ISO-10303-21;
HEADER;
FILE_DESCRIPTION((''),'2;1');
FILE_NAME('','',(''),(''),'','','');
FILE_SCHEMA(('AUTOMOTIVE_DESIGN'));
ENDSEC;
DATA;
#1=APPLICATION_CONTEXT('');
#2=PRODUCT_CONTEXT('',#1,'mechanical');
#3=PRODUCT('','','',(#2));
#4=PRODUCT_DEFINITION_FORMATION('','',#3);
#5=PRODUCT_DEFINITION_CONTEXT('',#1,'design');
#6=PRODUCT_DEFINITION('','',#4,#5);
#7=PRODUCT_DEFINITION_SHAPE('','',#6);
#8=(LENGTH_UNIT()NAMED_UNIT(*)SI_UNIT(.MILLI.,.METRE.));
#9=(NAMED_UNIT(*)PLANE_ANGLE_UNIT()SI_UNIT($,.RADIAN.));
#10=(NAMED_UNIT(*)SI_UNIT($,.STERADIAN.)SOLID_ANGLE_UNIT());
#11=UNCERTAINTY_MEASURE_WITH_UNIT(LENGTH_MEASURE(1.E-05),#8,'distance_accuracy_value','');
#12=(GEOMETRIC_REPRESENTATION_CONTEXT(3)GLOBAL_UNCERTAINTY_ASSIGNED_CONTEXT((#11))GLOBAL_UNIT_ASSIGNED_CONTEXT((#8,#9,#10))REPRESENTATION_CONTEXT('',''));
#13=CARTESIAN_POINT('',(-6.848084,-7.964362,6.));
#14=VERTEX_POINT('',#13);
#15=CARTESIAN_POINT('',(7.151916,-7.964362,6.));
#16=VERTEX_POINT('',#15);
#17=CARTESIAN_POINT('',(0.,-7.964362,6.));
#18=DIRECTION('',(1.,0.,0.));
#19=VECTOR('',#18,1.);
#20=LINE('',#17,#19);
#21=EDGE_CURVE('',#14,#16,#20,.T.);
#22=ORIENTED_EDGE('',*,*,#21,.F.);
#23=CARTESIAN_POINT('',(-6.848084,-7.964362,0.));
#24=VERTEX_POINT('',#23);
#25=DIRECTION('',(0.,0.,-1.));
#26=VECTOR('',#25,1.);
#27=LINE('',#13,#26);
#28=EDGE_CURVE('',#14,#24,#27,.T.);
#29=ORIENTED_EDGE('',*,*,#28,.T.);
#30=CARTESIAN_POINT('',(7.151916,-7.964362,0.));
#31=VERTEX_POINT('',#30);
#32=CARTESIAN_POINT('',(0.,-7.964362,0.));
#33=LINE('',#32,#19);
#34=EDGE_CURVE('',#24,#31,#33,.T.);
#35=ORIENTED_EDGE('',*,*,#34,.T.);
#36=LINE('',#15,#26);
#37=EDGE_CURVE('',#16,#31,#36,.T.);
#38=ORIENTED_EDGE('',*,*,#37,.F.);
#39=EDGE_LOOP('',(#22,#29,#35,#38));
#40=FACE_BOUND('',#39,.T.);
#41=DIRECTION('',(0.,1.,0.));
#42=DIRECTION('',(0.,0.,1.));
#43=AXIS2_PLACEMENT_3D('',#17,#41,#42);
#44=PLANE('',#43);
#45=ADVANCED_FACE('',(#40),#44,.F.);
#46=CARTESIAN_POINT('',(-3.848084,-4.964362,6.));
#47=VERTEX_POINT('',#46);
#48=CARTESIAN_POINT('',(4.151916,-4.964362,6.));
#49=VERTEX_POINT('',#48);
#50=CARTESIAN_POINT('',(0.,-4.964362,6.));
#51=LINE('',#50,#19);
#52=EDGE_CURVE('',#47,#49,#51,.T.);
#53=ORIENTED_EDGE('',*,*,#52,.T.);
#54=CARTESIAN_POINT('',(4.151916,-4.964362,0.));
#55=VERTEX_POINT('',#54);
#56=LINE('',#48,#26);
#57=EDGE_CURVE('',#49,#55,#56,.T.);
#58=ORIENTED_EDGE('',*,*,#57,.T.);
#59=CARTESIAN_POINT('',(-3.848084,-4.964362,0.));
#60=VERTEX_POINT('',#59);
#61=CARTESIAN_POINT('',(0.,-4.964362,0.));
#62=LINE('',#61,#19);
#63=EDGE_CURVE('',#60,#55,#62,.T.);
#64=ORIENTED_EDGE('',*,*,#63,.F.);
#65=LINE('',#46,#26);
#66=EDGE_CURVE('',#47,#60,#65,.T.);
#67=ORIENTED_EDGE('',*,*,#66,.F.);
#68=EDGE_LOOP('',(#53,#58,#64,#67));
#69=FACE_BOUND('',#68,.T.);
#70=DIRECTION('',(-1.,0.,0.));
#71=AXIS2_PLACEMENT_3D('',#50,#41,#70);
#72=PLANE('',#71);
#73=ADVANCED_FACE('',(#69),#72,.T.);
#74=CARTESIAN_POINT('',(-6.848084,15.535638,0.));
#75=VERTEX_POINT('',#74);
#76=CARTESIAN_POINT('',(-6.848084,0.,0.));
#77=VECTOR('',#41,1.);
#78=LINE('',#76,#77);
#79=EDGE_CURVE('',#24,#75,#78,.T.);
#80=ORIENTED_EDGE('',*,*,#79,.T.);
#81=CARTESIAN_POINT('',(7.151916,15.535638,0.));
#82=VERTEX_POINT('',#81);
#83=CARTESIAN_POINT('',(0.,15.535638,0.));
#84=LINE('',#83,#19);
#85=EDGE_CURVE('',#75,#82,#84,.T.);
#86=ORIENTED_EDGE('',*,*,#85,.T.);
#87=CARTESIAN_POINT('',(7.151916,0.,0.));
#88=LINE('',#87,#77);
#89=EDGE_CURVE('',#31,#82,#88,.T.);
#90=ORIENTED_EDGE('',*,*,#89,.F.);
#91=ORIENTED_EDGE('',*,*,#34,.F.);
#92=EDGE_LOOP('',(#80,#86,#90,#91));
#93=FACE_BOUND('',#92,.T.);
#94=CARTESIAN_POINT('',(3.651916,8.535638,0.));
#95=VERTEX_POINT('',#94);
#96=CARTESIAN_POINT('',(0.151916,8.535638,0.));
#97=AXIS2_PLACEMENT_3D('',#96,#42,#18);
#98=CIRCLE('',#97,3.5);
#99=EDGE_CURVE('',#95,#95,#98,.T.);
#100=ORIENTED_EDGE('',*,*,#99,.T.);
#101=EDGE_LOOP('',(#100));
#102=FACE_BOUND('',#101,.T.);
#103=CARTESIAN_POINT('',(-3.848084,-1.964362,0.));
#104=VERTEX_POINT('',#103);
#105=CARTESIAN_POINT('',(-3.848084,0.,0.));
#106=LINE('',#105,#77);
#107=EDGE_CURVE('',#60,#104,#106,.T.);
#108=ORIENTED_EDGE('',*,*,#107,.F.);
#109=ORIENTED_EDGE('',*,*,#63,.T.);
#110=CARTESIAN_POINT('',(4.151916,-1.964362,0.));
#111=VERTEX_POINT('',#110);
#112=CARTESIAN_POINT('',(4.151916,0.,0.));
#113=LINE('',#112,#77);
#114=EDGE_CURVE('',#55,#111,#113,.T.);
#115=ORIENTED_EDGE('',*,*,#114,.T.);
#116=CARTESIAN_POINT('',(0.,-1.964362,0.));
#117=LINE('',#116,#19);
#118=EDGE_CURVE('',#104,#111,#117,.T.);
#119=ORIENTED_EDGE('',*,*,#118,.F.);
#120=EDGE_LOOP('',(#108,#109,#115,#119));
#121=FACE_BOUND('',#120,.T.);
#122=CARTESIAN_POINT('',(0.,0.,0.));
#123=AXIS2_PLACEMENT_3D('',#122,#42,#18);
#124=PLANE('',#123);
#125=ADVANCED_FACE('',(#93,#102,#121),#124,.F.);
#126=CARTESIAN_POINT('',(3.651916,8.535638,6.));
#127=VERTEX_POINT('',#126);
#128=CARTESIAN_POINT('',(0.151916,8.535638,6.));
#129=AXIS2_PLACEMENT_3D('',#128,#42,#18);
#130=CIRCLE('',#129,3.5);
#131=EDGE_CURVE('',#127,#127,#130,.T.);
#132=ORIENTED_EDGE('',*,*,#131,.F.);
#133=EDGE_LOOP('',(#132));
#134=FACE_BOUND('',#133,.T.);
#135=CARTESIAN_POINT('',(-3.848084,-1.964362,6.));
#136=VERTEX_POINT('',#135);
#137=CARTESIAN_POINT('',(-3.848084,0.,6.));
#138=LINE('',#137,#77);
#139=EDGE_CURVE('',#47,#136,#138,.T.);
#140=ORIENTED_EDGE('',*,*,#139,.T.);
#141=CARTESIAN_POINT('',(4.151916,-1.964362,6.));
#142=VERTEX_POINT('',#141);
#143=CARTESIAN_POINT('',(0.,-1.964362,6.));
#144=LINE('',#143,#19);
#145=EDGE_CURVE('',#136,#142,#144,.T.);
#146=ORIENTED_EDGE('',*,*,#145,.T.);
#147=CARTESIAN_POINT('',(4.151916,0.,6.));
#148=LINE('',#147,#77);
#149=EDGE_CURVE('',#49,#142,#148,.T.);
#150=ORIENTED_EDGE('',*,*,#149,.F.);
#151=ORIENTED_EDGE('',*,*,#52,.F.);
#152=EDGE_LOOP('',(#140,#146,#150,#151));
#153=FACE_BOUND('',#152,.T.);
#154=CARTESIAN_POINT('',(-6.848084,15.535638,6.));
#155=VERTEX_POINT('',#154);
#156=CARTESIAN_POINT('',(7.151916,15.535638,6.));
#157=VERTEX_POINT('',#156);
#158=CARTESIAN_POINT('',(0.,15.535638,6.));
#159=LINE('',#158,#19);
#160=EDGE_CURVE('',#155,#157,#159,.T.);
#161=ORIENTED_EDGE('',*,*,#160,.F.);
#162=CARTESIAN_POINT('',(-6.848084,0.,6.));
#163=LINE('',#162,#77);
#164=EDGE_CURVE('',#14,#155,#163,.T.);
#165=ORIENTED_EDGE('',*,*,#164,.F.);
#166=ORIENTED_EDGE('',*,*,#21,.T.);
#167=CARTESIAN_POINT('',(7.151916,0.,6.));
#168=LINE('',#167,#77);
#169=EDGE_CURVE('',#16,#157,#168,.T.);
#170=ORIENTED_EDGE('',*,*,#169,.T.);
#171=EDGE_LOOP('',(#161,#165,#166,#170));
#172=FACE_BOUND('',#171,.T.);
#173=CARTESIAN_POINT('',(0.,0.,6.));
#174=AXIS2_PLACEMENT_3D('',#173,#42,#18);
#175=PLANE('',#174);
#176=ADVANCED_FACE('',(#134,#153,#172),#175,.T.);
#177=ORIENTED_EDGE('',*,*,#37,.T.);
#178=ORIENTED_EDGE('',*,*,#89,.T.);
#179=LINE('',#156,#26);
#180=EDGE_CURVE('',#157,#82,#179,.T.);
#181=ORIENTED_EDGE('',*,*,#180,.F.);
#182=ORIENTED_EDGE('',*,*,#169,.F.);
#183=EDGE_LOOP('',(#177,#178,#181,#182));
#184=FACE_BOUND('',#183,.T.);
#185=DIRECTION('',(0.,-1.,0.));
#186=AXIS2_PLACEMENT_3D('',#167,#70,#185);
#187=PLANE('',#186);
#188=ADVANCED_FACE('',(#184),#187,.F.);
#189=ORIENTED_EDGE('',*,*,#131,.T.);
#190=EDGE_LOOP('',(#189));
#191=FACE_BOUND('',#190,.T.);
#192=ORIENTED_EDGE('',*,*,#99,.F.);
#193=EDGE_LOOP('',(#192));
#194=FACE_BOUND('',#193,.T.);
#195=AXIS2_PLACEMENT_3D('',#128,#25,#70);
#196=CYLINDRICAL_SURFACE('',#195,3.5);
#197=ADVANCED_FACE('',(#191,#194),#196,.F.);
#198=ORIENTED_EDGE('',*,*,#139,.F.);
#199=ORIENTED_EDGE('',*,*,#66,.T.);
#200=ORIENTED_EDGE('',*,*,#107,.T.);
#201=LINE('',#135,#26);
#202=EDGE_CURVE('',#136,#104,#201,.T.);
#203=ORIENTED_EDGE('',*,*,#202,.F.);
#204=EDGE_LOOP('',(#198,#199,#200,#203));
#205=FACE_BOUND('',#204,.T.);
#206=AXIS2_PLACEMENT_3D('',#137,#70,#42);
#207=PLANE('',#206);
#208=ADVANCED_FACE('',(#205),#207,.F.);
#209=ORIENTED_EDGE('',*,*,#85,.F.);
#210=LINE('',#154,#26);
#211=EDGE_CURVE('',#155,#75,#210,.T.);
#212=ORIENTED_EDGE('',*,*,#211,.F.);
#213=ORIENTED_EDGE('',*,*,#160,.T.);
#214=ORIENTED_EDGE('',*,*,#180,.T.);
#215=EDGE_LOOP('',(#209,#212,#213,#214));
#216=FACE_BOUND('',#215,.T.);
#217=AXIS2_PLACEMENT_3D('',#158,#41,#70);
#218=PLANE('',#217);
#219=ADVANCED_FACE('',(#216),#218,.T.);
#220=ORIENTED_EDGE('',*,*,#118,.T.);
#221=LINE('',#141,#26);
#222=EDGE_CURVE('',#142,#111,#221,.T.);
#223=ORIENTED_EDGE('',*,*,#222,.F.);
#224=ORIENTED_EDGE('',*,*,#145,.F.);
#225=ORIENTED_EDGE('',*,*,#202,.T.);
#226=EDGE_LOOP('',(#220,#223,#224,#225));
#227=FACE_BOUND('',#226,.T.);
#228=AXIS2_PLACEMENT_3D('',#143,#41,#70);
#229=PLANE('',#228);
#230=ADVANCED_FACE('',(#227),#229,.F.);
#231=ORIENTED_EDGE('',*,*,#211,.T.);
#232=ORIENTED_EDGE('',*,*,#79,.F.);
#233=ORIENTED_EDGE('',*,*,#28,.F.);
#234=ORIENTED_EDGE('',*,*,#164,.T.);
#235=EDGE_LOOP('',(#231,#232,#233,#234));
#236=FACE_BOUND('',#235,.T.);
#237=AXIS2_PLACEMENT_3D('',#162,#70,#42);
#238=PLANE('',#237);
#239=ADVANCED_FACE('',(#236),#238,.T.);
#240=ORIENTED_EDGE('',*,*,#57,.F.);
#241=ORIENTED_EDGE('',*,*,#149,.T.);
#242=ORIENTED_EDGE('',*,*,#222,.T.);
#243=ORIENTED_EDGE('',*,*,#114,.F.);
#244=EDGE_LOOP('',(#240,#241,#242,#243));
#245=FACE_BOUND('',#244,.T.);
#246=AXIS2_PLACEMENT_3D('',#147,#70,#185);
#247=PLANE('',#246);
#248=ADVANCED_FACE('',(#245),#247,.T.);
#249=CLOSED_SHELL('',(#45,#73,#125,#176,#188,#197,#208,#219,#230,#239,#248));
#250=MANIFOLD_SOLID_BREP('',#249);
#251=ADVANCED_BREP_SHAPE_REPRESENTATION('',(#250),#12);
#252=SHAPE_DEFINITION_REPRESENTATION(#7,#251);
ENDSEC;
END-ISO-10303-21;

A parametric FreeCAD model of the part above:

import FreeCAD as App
import Part
import Sketcher


def add_polygon(sketch, points):
    """Adds a closed chain of lines whose ends are joined by coincident constraints."""
    first, n = sketch.GeometryCount, len(points)
    for a, b in zip(points, points[1:] + points[:1]):
        sketch.addGeometry(Part.LineSegment(App.Vector(*a, 0), App.Vector(*b, 0)), False)
    for i in range(n):
        sketch.addConstraint(Sketcher.Constraint("Coincident", first + i, 2, first + (i + 1) % n, 1))

doc = App.newDocument("Part")
body = doc.addObject("PartDesign::Body", "Body")

sketch1 = body.newObject("Sketcher::SketchObject", "Sketch")
sketch1.AttachmentSupport = (doc.getObject("XY_Plane"), [""])
sketch1.MapMode = "FlatFace"
add_polygon(sketch1, [(-6.848084, 15.535638), (-6.848084, -7.964362), (7.151916, -7.964362), (7.151916, 15.535638)])
add_polygon(sketch1, [(4.151916, -4.964362), (-3.848084, -4.964362), (-3.848084, -1.964362), (4.151916, -1.964362)])
sketch1.addGeometry(Part.Circle(App.Vector(0.151916, 8.535638, 0), App.Vector(0, 0, 1), 3.5), False)
sketch1.addConstraint([
    Sketcher.Constraint("Vertical", 0),
    Sketcher.Constraint("Horizontal", 1),
    Sketcher.Constraint("Vertical", 2),
    Sketcher.Constraint("Horizontal", 3),
    Sketcher.Constraint("Horizontal", 4),
    Sketcher.Constraint("Vertical", 5),
    Sketcher.Constraint("Horizontal", 6),
    Sketcher.Constraint("Vertical", 7),
    Sketcher.Constraint("Diameter", 8, 7.0),
    Sketcher.Constraint("DistanceX", 1, 1, 1, 2, 14.0),
    Sketcher.Constraint("DistanceX", 4, 2, 4, 1, 8.0),
    Sketcher.Constraint("DistanceY", 5, 1, 5, 2, 3.0),
    Sketcher.Constraint("DistanceY", 0, 2, 0, 1, 23.5),
    Sketcher.Constraint("DistanceX", 0, 2, 8, 3, 7.0),
    Sketcher.Constraint("DistanceY", 8, 3, 2, 2, 7.0),
    Sketcher.Constraint("DistanceX", 0, 2, 4, 2, 3.0),
    Sketcher.Constraint("DistanceY", 0, 2, 4, 2, 3.0),
    Sketcher.Constraint("DistanceX", -1, 1, 8, 3, 0.151916),
    Sketcher.Constraint("DistanceY", -1, 1, 8, 3, 8.535638),
])
pad1 = body.newObject("PartDesign::Pad", "Pad")
pad1.Profile = sketch1
pad1.Length = 6

doc.recompute()
